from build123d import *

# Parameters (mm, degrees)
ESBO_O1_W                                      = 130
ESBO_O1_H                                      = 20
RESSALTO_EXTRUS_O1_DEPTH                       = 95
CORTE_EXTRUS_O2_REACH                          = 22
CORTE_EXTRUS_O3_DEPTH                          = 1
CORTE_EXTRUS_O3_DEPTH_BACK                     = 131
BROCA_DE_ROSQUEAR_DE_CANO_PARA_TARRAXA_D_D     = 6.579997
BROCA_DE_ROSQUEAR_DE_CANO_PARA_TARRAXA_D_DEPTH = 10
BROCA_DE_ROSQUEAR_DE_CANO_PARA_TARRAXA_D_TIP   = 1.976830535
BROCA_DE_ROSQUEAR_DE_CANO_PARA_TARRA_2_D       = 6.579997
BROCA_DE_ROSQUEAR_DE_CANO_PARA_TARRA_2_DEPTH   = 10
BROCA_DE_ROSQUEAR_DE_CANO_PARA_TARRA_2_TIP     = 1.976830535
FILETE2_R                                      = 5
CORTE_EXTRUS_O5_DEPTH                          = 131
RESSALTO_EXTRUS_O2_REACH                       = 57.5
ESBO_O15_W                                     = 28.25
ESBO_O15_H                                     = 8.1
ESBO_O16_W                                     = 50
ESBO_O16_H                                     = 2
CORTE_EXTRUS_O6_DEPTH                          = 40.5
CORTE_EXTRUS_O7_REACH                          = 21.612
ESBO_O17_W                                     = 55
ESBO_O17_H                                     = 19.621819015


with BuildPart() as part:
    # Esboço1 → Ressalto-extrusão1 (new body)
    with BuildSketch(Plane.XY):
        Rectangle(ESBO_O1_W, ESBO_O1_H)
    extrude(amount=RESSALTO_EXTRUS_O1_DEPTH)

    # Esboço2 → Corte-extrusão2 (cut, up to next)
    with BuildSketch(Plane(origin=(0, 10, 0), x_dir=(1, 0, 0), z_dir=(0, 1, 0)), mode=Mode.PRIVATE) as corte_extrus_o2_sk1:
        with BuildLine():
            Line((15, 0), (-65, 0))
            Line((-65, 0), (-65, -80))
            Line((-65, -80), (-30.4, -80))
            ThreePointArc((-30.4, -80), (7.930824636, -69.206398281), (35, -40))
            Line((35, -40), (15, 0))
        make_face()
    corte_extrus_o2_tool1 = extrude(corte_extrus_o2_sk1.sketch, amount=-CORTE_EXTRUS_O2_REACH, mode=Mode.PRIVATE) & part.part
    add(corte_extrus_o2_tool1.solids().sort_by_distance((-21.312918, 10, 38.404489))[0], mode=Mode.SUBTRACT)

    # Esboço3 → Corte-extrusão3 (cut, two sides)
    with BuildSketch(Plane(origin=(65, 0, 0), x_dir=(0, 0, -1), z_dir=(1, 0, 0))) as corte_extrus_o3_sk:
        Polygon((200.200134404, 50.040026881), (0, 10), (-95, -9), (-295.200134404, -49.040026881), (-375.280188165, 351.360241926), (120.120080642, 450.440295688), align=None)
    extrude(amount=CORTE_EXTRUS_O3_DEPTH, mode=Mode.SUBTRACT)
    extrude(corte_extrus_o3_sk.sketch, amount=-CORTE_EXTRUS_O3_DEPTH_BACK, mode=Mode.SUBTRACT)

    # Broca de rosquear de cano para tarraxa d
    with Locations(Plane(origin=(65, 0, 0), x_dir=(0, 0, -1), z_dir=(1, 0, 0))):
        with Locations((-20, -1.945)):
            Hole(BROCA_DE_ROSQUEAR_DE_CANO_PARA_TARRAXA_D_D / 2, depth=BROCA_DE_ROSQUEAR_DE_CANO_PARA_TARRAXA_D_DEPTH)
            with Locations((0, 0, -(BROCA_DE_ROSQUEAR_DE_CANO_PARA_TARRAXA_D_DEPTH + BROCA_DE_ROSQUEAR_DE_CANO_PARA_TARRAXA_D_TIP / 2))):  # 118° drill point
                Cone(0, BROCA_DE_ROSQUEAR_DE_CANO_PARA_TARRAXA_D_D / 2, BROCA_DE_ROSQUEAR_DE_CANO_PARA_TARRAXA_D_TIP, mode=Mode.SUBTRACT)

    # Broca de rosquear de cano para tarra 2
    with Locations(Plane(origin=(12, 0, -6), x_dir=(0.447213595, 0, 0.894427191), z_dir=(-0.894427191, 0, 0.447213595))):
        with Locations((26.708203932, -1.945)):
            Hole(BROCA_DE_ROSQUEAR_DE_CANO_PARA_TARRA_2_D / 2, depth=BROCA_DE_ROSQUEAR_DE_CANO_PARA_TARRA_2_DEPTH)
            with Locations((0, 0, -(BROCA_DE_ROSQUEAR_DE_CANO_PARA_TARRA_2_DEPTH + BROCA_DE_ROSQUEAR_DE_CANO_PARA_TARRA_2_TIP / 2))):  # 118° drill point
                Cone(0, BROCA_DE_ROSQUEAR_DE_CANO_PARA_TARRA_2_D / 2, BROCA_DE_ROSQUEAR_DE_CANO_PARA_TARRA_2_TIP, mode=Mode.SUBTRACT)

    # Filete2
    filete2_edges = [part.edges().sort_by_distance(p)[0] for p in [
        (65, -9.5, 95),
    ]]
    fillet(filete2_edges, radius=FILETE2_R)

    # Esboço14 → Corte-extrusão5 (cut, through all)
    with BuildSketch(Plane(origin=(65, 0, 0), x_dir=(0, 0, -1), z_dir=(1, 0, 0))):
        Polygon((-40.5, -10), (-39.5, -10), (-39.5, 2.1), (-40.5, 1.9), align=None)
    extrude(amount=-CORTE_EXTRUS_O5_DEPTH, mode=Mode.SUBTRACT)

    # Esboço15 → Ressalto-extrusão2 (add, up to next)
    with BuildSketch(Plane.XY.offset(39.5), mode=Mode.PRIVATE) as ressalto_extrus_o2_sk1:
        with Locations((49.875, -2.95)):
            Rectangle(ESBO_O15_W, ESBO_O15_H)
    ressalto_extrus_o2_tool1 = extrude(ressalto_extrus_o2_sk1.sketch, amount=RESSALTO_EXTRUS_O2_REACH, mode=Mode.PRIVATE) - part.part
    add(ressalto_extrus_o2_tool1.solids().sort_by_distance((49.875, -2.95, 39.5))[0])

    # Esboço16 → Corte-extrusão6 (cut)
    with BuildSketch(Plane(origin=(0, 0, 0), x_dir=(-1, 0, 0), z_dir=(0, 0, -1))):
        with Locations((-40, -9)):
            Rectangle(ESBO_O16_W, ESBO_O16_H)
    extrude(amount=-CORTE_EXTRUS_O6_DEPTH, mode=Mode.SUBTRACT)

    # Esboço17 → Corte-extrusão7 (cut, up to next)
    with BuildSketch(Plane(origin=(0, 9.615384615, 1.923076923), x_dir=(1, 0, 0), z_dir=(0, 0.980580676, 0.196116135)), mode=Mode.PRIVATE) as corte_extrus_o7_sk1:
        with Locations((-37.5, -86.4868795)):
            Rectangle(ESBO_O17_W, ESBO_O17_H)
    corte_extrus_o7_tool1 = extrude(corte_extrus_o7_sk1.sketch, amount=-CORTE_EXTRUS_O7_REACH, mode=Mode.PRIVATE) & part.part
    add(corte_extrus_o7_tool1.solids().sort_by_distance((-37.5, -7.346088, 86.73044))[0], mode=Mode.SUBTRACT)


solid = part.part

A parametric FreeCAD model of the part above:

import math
import FreeCAD as App
import Part
import Sketcher

V = App.Vector
Q = App.Units.Quantity


def edges_at(feature, points):
    """Names of the edges that pass closest to the given points."""
    edges = feature.Shape.Edges
    near = lambda p: min(range(len(edges)), key=lambda i: edges[i].distToShape(Part.Vertex(*p))[0])
    return sorted({f"Edge{near(p) + 1}" for p in points})

doc = App.newDocument("Part")
body = doc.addObject("PartDesign::Body", "Body")
body.AllowCompound = True

sketch1 = body.newObject("Sketcher::SketchObject", "Sketch")
sketch1.AttachmentSupport = (doc.getObject("XY_Plane"), [""])
sketch1.MapMode = "FlatFace"
sketch1.addGeometry([
    Part.LineSegment(V(-65, 10, 0), V(-65, -10, 0)),
    Part.LineSegment(V(-65, -10, 0), V(65, -10, 0)),
    Part.LineSegment(V(65, -10, 0), V(65, 10, 0)),
    Part.LineSegment(V(65, 10, 0), V(-65, 10, 0)),
], False)
sketch1.addConstraint([
    Sketcher.Constraint("Coincident", 0, 2, 1, 1),
    Sketcher.Constraint("Coincident", 1, 2, 2, 1),
    Sketcher.Constraint("Coincident", 2, 2, 3, 1),
    Sketcher.Constraint("Coincident", 3, 2, 0, 1),
    Sketcher.Constraint("Vertical", 0),
    Sketcher.Constraint("Horizontal", 1),
    Sketcher.Constraint("Vertical", 2),
    Sketcher.Constraint("Horizontal", 3),
    Sketcher.Constraint("Symmetric", 0, 2, 2, 2, -1, 1),
    Sketcher.Constraint("DistanceX", 1, 1, 1, 2, Q("130 mm")),
    Sketcher.Constraint("DistanceY", 0, 2, 0, 1, Q("20 mm")),
])
pad1 = body.newObject("PartDesign::Pad", "Pad")
pad1.Profile = sketch1
pad1.Length = 95

sketch2 = body.newObject("Sketcher::SketchObject", "Sketch001")
sketch2.AttachmentSupport = (doc.getObject("XZ_Plane"), [""])
sketch2.MapMode = "FlatFace"
sketch2.AttachmentOffset = App.Placement(V(0, 0, -10), App.Rotation())
sketch2.addGeometry([
    Part.LineSegment(V(15, 0, 0), V(-65, 0, 0)),
    Part.LineSegment(V(-65, 0, 0), V(-65, 80, 0)),
    Part.LineSegment(V(-65, 80, 0), V(-30, 80, 0)),
    Part.ArcOfCircle(Part.Circle(V(-30, 7, 0), V(0, 0, 1), 73), math.radians(27), math.radians(90)),
    Part.LineSegment(V(35, 40, 0), V(15, 0, 0)),
], False)
sketch2.addConstraint([
    Sketcher.Constraint("Coincident", 0, 2, 1, 1),
    Sketcher.Constraint("Coincident", 1, 2, 2, 1),
    Sketcher.Constraint("Coincident", 2, 2, 3, 2),
    Sketcher.Constraint("Coincident", 3, 1, 4, 1),
    Sketcher.Constraint("Coincident", 4, 2, 0, 1),
    Sketcher.Constraint("Horizontal", 0),
    Sketcher.Constraint("Vertical", 1),
    Sketcher.Constraint("Horizontal", 2),
    Sketcher.Constraint("PointOnObject", 0, 2, -1),
    Sketcher.Constraint("Equal", 0, 1),
    Sketcher.Constraint("DistanceX", 0, 2, 0, 1, Q("80 mm")),
    Sketcher.Constraint("Radius", 3, Q("73.47 mm")),
    Sketcher.Constraint("DistanceX", 2, 1, 2, 2, Q("34.6 mm")),
    Sketcher.Constraint("DistanceX", 0, 2, -1, 1, Q("65 mm")),
    Sketcher.Constraint("DistanceX", -1, 1, 3, 1, Q("35 mm")),
    Sketcher.Constraint("DistanceY", -1, 1, 3, 1, Q("40 mm")),
])
pocket1 = body.newObject("PartDesign::Pocket", "Pocket")
pocket1.Profile = sketch2
pocket1.Type = "UpToFirst"
pocket1.Reversed = True

sketch3 = body.newObject("Sketcher::SketchObject", "Sketch002")
sketch3.AttachmentSupport = (doc.getObject("YZ_Plane"), [""])
sketch3.MapMode = "FlatFace"
sketch3.AttachmentOffset = App.Placement(V(0, 0, 65), App.Rotation())
sketch3.addGeometry([
    Part.LineSegment(V(-49, 295, 0), V(50, -200, 0)),
    Part.LineSegment(V(50, -200, 0), V(450, -120, 0)),
    Part.LineSegment(V(450, -120, 0), V(351, 375, 0)),
    Part.LineSegment(V(351, 375, 0), V(-49, 295, 0)),
], False)
sketch3.addConstraint([
    Sketcher.Constraint("Coincident", 0, 2, 1, 1),
    Sketcher.Constraint("Coincident", 1, 2, 2, 1),
    Sketcher.Constraint("Coincident", 2, 2, 3, 1),
    Sketcher.Constraint("Coincident", 3, 2, 0, 1),
    Sketcher.Constraint("Perpendicular", 0, 1),
    Sketcher.Constraint("Perpendicular", 1, 2),
    Sketcher.Constraint("Perpendicular", 2, 3),
    Sketcher.Constraint("DistanceY", 1, 2, -1, 1, Q("120.120081 mm")),
    Sketcher.Constraint("DistanceX", -1, 1, 2, 2, Q("351.360242 mm")),
    Sketcher.Constraint("DistanceY", -1, 1, 2, 2, Q("375.280188 mm")),
    Sketcher.Constraint("DistanceX", 0, 2, 1, 2, Q("400.400269 mm")),
    Sketcher.Constraint("Distance", 0, Q("505.211128 mm")),
])
pocket2 = body.newObject("PartDesign::Pocket", "Pocket001")
pocket2.Profile = sketch3
pocket2.Type = "ThroughAll"
pocket2.Midplane = True

sketch4 = body.newObject("Sketcher::SketchObject", "Sketch003")
sketch4.AttachmentSupport = (doc.getObject("YZ_Plane"), [""])
sketch4.MapMode = "FlatFace"
sketch4.AttachmentOffset = App.Placement(V(0, 0, 65), App.Rotation())
sketch4.addGeometry(Part.Circle(V(-1.9, 20, 0), V(0, 0, 1), 3.3), False)
sketch4.addConstraint([
    Sketcher.Constraint("DistanceY", -1, 1, 0, 3, Q("20 mm")),
    Sketcher.Constraint("Diameter", 0, Q("6.579997 mm")),
    Sketcher.Constraint("DistanceX", 0, 3, -1, 1, Q("1.945 mm")),
])
doc.recompute()
hole = body.newObject("PartDesign::Hole", "Hole")
hole.Profile = sketch4
hole.ThreadType = "None"
hole.Diameter = 6.579997
hole.DepthType = "Dimension"
hole.Depth = 10
hole.DrillPoint = "Angled"
hole.DrillPointAngle = 118

sketch5 = body.newObject("Sketcher::SketchObject", "Sketch004")
sketch5.Placement = App.Placement(V(12, 0, -6), App.Rotation(V(0.447213595, 0, 0.894427191), V(0, 1, 0), V(-0.894427191, 0, 0.447213595), "ZXY"))
sketch5.addGeometry(Part.Circle(V(26.7, -1.9, 0), V(0, 0, 1), 3.3), False)
sketch5.addConstraint([
    Sketcher.Constraint("Diameter", 0, Q("6.579997 mm")),
    Sketcher.Constraint("DistanceY", 0, 3, -1, 1, Q("1.945 mm")),
    Sketcher.Constraint("DistanceX", -1, 1, 0, 3, Q("26.708204 mm")),
])
doc.recompute()
hole2 = body.newObject("PartDesign::Hole", "Hole001")
hole2.Profile = sketch5
hole2.ThreadType = "None"
hole2.Diameter = 6.579997
hole2.DepthType = "Dimension"
hole2.Depth = 10
hole2.DrillPoint = "Angled"
hole2.DrillPointAngle = 118
doc.recompute()

fillet = body.newObject("PartDesign::Fillet", "Fillet")
fillet.Base = (hole2, edges_at(hole2, [(65, -9.5, 95)]))
fillet.Radius = 5

sketch6 = body.newObject("Sketcher::SketchObject", "Sketch005")
sketch6.AttachmentSupport = (doc.getObject("YZ_Plane"), [""])
sketch6.MapMode = "FlatFace"
sketch6.AttachmentOffset = App.Placement(V(0, 0, 65), App.Rotation())
sketch6.addGeometry([
    Part.LineSegment(V(-10, 40.5, 0), V(-10, 39.5, 0)),
    Part.LineSegment(V(-10, 39.5, 0), V(2.1, 39.5, 0)),
    Part.LineSegment(V(2.1, 39.5, 0), V(1.9, 40.5, 0)),
    Part.LineSegment(V(1.9, 40.5, 0), V(-10, 40.5, 0)),
], False)
sketch6.addConstraint([
    Sketcher.Constraint("Coincident", 0, 2, 1, 1),
    Sketcher.Constraint("Coincident", 1, 2, 2, 1),
    Sketcher.Constraint("Coincident", 2, 2, 3, 1),
    Sketcher.Constraint("Coincident", 3, 2, 0, 1),
    Sketcher.Constraint("Vertical", 0),
    Sketcher.Constraint("Horizontal", 1),
    Sketcher.Constraint("Horizontal", 3),
    Sketcher.Constraint("DistanceY", 0, 2, 0, 1, Q("1 mm")),
    Sketcher.Constraint("DistanceX", 1, 1, 1, 2, Q("12.1 mm")),
    Sketcher.Constraint("DistanceX", 3, 2, 3, 1, Q("11.9 mm")),
    Sketcher.Constraint("DistanceX", 0, 2, -1, 1, Q("10 mm")),
    Sketcher.Constraint("DistanceY", -1, 1, 0, 2, Q("39.5 mm")),
])
pocket3 = body.newObject("PartDesign::Pocket", "Pocket002")
pocket3.Profile = sketch6
pocket3.Type = "ThroughAll"

sketch7 = body.newObject("Sketcher::SketchObject", "Sketch006")
sketch7.AttachmentSupport = (doc.getObject("XY_Plane"), [""])
sketch7.MapMode = "FlatFace"
sketch7.AttachmentOffset = App.Placement(V(0, 0, 39.5), App.Rotation())
sketch7.addGeometry([
    Part.LineSegment(V(36, 1, 0), V(36, -7, 0)),
    Part.LineSegment(V(36, -7, 0), V(64, -7, 0)),
    Part.LineSegment(V(64, -7, 0), V(64, 1, 0)),
    Part.LineSegment(V(64, 1, 0), V(36, 1, 0)),
], False)
sketch7.addConstraint([
    Sketcher.Constraint("Coincident", 0, 2, 1, 1),
    Sketcher.Constraint("Coincident", 1, 2, 2, 1),
    Sketcher.Constraint("Coincident", 2, 2, 3, 1),
    Sketcher.Constraint("Coincident", 3, 2, 0, 1),
    Sketcher.Constraint("Vertical", 0),
    Sketcher.Constraint("Horizontal", 1),
    Sketcher.Constraint("Vertical", 2),
    Sketcher.Constraint("Horizontal", 3),
    Sketcher.Constraint("DistanceY", 0, 2, 0, 1, Q("8.1 mm")),
    Sketcher.Constraint("DistanceY", 0, 2, -1, 1, Q("7 mm")),
    Sketcher.Constraint("DistanceX", -1, 1, 1, 2, Q("64 mm")),
    Sketcher.Constraint("DistanceX", 1, 1, 1, 2, Q("28.25 mm")),
])
pad2 = body.newObject("PartDesign::Pad", "Pad001")
pad2.Profile = sketch7
pad2.Type = "UpToFirst"

sketch8 = body.newObject("Sketcher::SketchObject", "Sketch007")
sketch8.AttachmentSupport = (doc.getObject("XY_Plane"), [""])
sketch8.MapMode = "FlatFace"
sketch8.addGeometry([
    Part.LineSegment(V(65, -8, 0), V(65, -10, 0)),
    Part.LineSegment(V(65, -10, 0), V(15, -10, 0)),
    Part.LineSegment(V(15, -10, 0), V(15, -8, 0)),
    Part.LineSegment(V(15, -8, 0), V(65, -8, 0)),
], False)
sketch8.addConstraint([
    Sketcher.Constraint("Coincident", 0, 2, 1, 1),
    Sketcher.Constraint("Coincident", 1, 2, 2, 1),
    Sketcher.Constraint("Coincident", 2, 2, 3, 1),
    Sketcher.Constraint("Coincident", 3, 2, 0, 1),
    Sketcher.Constraint("Vertical", 0),
    Sketcher.Constraint("Horizontal", 1),
    Sketcher.Constraint("Vertical", 2),
    Sketcher.Constraint("Horizontal", 3),
    Sketcher.Constraint("DistanceX", 1, 2, 1, 1, Q("50 mm")),
    Sketcher.Constraint("DistanceY", 0, 2, 0, 1, Q("2 mm")),
    Sketcher.Constraint("DistanceX", -1, 1, 0, 2, Q("65 mm")),
    Sketcher.Constraint("DistanceY", 0, 2, -1, 1, Q("10 mm")),
])
pocket4 = body.newObject("PartDesign::Pocket", "Pocket003")
pocket4.Profile = sketch8
pocket4.Length = 40.5
pocket4.Reversed = True

sketch9 = body.newObject("Sketcher::SketchObject", "Sketch008")
sketch9.Placement = App.Placement(V(0, 9.615385, 1.923077), App.Rotation(V(1, 0, 0), V(0, 0.196116135, -0.980580676), V(0, 0.980580676, 0.196116135), "ZXY"))
sketch9.addGeometry([
    Part.LineSegment(V(-65, -77, 0), V(-65, -96, 0)),
    Part.LineSegment(V(-65, -96, 0), V(-10, -96, 0)),
    Part.LineSegment(V(-10, -96, 0), V(-10, -77, 0)),
    Part.LineSegment(V(-10, -77, 0), V(-65, -77, 0)),
], False)
sketch9.addConstraint([
    Sketcher.Constraint("Coincident", 0, 2, 1, 1),
    Sketcher.Constraint("Coincident", 1, 2, 2, 1),
    Sketcher.Constraint("Coincident", 2, 2, 3, 1),
    Sketcher.Constraint("Coincident", 3, 2, 0, 1),
    Sketcher.Constraint("Vertical", 0),
    Sketcher.Constraint("Horizontal", 1),
    Sketcher.Constraint("Vertical", 2),
    Sketcher.Constraint("Horizontal", 3),
    Sketcher.Constraint("DistanceX", 1, 1, 1, 2, Q("55 mm")),
    Sketcher.Constraint("DistanceX", 0, 2, -1, 1, Q("65 mm")),
    Sketcher.Constraint("DistanceY", 0, 2, 0, 1, Q("19.621819 mm")),
    Sketcher.Constraint("DistanceY", 0, 2, -1, 1, Q("96.297789 mm")),
])
pocket5 = body.newObject("PartDesign::Pocket", "Pocket004")
pocket5.Profile = sketch9
pocket5.Type = "UpToFirst"

doc.recompute()
